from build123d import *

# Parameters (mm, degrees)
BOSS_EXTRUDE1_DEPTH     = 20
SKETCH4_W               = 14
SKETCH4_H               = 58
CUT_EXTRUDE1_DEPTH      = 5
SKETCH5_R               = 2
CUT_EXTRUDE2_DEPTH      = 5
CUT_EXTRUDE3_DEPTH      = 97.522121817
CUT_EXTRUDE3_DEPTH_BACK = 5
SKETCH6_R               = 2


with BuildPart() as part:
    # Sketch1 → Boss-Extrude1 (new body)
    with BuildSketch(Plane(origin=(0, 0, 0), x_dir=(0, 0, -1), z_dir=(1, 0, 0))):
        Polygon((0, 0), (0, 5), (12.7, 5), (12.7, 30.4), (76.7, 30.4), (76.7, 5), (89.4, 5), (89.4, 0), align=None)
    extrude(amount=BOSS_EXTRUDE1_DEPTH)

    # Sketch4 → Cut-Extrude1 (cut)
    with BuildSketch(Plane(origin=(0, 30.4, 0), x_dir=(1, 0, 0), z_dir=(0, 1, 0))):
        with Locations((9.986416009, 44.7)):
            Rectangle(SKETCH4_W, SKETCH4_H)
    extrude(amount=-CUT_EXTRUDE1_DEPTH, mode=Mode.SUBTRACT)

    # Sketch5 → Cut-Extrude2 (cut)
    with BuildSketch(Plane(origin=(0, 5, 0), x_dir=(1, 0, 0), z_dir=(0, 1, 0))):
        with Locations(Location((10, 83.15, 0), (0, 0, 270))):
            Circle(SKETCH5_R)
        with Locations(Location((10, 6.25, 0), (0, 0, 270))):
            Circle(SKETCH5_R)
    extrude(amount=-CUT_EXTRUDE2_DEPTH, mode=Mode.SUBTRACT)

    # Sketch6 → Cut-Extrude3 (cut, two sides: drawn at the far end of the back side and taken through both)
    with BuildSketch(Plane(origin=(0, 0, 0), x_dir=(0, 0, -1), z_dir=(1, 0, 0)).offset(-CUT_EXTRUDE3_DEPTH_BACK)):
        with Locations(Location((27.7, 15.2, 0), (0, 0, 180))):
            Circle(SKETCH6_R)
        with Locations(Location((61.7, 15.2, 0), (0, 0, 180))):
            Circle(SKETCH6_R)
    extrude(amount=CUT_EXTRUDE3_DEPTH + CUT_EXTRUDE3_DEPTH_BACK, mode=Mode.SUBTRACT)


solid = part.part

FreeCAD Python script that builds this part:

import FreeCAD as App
import Part
import Sketcher
from FreeCAD import Vector

doc = App.newDocument("Part")
body = doc.addObject("PartDesign::Body", "Body")

# Sketch on YZ plane
sketch1 = body.newObject("Sketcher::SketchObject", "Sketch")
sketch1.AttachmentSupport = (doc.getObject("YZ_Plane"), [""])
sketch1.MapMode = "FlatFace"
sketch1.addGeometry(Part.LineSegment(Vector(5, 0, 0), Vector(0, 0, 0)), False)
sketch1.addGeometry(Part.LineSegment(Vector(0, 0, 0), Vector(0, -89, 0)), False)
sketch1.addGeometry(Part.LineSegment(Vector(0, -89, 0), Vector(5, -89, 0)), False)
sketch1.addGeometry(Part.LineSegment(Vector(5, -89, 0), Vector(5, -77, 0)), False)
sketch1.addGeometry(Part.LineSegment(Vector(5, -77, 0), Vector(30, -77, 0)), False)
sketch1.addGeometry(Part.LineSegment(Vector(30, -77, 0), Vector(30, -13, 0)), False)
sketch1.addGeometry(Part.LineSegment(Vector(30, -13, 0), Vector(5, -13, 0)), False)
sketch1.addGeometry(Part.LineSegment(Vector(5, -13, 0), Vector(5, 0, 0)), False)
sketch1.addConstraint(Sketcher.Constraint("Coincident", 0, 2, 1, 1))
sketch1.addConstraint(Sketcher.Constraint("Coincident", 1, 2, 2, 1))
sketch1.addConstraint(Sketcher.Constraint("Coincident", 2, 2, 3, 1))
sketch1.addConstraint(Sketcher.Constraint("Coincident", 3, 2, 4, 1))
sketch1.addConstraint(Sketcher.Constraint("Coincident", 4, 2, 5, 1))
sketch1.addConstraint(Sketcher.Constraint("Coincident", 5, 2, 6, 1))
sketch1.addConstraint(Sketcher.Constraint("Coincident", 6, 2, 7, 1))
sketch1.addConstraint(Sketcher.Constraint("Coincident", 7, 2, 0, 1))
sketch1.addConstraint(Sketcher.Constraint("Horizontal", 0))
sketch1.addConstraint(Sketcher.Constraint("Vertical", 1))
sketch1.addConstraint(Sketcher.Constraint("Horizontal", 2))
sketch1.addConstraint(Sketcher.Constraint("Vertical", 3))
sketch1.addConstraint(Sketcher.Constraint("Horizontal", 4))
sketch1.addConstraint(Sketcher.Constraint("Vertical", 5))
sketch1.addConstraint(Sketcher.Constraint("Horizontal", 6))
sketch1.addConstraint(Sketcher.Constraint("Vertical", 7))
sketch1.addConstraint(Sketcher.Constraint("Coincident", 0, 2, -1, 1))
sketch1.addConstraint(Sketcher.Constraint("Vertical", 3, 2, 6, 2))
sketch1.addConstraint(Sketcher.Constraint("Equal", 3, 7))
sketch1.addConstraint(Sketcher.Constraint("DistanceX", 0, 2, 0, 1, 5.0))
sketch1.addConstraint(Sketcher.Constraint("DistanceY", 5, 1, 5, 2, 64.0))
sketch1.addConstraint(Sketcher.Constraint("DistanceX", 4, 1, 4, 2, 25.4))
sketch1.addConstraint(Sketcher.Constraint("DistanceY", 1, 2, 1, 1, 89.4))
pad1 = body.newObject("PartDesign::Pad", "Pad")
pad1.Profile = sketch1
pad1.Length = 20

# Sketch on XZ plane
sketch2 = body.newObject("Sketcher::SketchObject", "Sketch001")
sketch2.AttachmentSupport = (doc.getObject("XZ_Plane"), [""])
sketch2.MapMode = "FlatFace"
sketch2.AttachmentOffset = App.Placement(Vector(0, 0, -30.4), App.Rotation())
sketch2.addGeometry(Part.LineSegment(Vector(3, -74, 0), Vector(3, -16, 0)), False)
sketch2.addGeometry(Part.LineSegment(Vector(3, -16, 0), Vector(17, -16, 0)), False)
sketch2.addGeometry(Part.LineSegment(Vector(17, -16, 0), Vector(17, -74, 0)), False)
sketch2.addGeometry(Part.LineSegment(Vector(17, -74, 0), Vector(3, -74, 0)), False)
sketch2.addConstraint(Sketcher.Constraint("Coincident", 0, 2, 1, 1))
sketch2.addConstraint(Sketcher.Constraint("Coincident", 1, 2, 2, 1))
sketch2.addConstraint(Sketcher.Constraint("Coincident", 2, 2, 3, 1))
sketch2.addConstraint(Sketcher.Constraint("Coincident", 3, 2, 0, 1))
sketch2.addConstraint(Sketcher.Constraint("Vertical", 0))
sketch2.addConstraint(Sketcher.Constraint("Horizontal", 1))
sketch2.addConstraint(Sketcher.Constraint("Vertical", 2))
sketch2.addConstraint(Sketcher.Constraint("Horizontal", 3))
sketch2.addConstraint(Sketcher.Constraint("DistanceX", 1, 1, 1, 2, 14.0))
sketch2.addConstraint(Sketcher.Constraint("DistanceY", 0, 1, 0, 2, 58.0))
sketch2.addConstraint(Sketcher.Constraint("DistanceY", 0, 2, -1, 1, 15.7))
sketch2.addConstraint(Sketcher.Constraint("DistanceX", -1, 1, 0, 2, 2.986416))
pocket1 = body.newObject("PartDesign::Pocket", "Pocket")
pocket1.Profile = sketch2
pocket1.Length = 5
pocket1.Reversed = True

# Sketch on XZ plane
sketch3 = body.newObject("Sketcher::SketchObject", "Sketch002")
sketch3.AttachmentSupport = (doc.getObject("XZ_Plane"), [""])
sketch3.MapMode = "FlatFace"
sketch3.AttachmentOffset = App.Placement(Vector(0, 0, -5), App.Rotation())
sketch3.addGeometry(Part.Circle(Vector(10, -83.2, 0), Vector(0, 0, 1), 2), False)
sketch3.addGeometry(Part.Circle(Vector(10, -6.2, 0), Vector(0, 0, 1), 2), False)
sketch3.addConstraint(Sketcher.Constraint("Equal", 0, 1))
sketch3.addConstraint(Sketcher.Constraint("Vertical", 0, 3, 1, 3))
sketch3.addConstraint(Sketcher.Constraint("Diameter", 0, 4.0))
sketch3.addConstraint(Sketcher.Constraint("DistanceX", -1, 1, 0, 3, 10.0))
sketch3.addConstraint(Sketcher.Constraint("DistanceY", 0, 3, 1, 3, 76.9))
sketch3.addConstraint(Sketcher.Constraint("DistanceY", 0, 3, -1, 1, 83.15))
pocket2 = body.newObject("PartDesign::Pocket", "Pocket001")
pocket2.Profile = sketch3
pocket2.Length = 5
pocket2.Reversed = True

# Sketch on YZ plane
sketch4 = body.newObject("Sketcher::SketchObject", "Sketch003")
sketch4.AttachmentSupport = (doc.getObject("YZ_Plane"), [""])
sketch4.MapMode = "FlatFace"
sketch4.addGeometry(Part.Circle(Vector(15.2, -27.7, 0), Vector(0, 0, 1), 2), False)
sketch4.addGeometry(Part.Circle(Vector(15.2, -61.7, 0), Vector(0, 0, 1), 2), False)
sketch4.addConstraint(Sketcher.Constraint("Equal", 0, 1))
sketch4.addConstraint(Sketcher.Constraint("Vertical", 0, 3, 1, 3))
sketch4.addConstraint(Sketcher.Constraint("Diameter", 0, 4.0))
sketch4.addConstraint(Sketcher.Constraint("DistanceY", 1, 3, 0, 3, 34.0))
sketch4.addConstraint(Sketcher.Constraint("DistanceX", -1, 1, 0, 3, 15.2))
sketch4.addConstraint(Sketcher.Constraint("DistanceY", 0, 3, -1, 1, 27.7))
pocket3 = body.newObject("PartDesign::Pocket", "Pocket002")
pocket3.Profile = sketch4
pocket3.Type = "ThroughAll"
pocket3.Midplane = True

doc.recompute()
